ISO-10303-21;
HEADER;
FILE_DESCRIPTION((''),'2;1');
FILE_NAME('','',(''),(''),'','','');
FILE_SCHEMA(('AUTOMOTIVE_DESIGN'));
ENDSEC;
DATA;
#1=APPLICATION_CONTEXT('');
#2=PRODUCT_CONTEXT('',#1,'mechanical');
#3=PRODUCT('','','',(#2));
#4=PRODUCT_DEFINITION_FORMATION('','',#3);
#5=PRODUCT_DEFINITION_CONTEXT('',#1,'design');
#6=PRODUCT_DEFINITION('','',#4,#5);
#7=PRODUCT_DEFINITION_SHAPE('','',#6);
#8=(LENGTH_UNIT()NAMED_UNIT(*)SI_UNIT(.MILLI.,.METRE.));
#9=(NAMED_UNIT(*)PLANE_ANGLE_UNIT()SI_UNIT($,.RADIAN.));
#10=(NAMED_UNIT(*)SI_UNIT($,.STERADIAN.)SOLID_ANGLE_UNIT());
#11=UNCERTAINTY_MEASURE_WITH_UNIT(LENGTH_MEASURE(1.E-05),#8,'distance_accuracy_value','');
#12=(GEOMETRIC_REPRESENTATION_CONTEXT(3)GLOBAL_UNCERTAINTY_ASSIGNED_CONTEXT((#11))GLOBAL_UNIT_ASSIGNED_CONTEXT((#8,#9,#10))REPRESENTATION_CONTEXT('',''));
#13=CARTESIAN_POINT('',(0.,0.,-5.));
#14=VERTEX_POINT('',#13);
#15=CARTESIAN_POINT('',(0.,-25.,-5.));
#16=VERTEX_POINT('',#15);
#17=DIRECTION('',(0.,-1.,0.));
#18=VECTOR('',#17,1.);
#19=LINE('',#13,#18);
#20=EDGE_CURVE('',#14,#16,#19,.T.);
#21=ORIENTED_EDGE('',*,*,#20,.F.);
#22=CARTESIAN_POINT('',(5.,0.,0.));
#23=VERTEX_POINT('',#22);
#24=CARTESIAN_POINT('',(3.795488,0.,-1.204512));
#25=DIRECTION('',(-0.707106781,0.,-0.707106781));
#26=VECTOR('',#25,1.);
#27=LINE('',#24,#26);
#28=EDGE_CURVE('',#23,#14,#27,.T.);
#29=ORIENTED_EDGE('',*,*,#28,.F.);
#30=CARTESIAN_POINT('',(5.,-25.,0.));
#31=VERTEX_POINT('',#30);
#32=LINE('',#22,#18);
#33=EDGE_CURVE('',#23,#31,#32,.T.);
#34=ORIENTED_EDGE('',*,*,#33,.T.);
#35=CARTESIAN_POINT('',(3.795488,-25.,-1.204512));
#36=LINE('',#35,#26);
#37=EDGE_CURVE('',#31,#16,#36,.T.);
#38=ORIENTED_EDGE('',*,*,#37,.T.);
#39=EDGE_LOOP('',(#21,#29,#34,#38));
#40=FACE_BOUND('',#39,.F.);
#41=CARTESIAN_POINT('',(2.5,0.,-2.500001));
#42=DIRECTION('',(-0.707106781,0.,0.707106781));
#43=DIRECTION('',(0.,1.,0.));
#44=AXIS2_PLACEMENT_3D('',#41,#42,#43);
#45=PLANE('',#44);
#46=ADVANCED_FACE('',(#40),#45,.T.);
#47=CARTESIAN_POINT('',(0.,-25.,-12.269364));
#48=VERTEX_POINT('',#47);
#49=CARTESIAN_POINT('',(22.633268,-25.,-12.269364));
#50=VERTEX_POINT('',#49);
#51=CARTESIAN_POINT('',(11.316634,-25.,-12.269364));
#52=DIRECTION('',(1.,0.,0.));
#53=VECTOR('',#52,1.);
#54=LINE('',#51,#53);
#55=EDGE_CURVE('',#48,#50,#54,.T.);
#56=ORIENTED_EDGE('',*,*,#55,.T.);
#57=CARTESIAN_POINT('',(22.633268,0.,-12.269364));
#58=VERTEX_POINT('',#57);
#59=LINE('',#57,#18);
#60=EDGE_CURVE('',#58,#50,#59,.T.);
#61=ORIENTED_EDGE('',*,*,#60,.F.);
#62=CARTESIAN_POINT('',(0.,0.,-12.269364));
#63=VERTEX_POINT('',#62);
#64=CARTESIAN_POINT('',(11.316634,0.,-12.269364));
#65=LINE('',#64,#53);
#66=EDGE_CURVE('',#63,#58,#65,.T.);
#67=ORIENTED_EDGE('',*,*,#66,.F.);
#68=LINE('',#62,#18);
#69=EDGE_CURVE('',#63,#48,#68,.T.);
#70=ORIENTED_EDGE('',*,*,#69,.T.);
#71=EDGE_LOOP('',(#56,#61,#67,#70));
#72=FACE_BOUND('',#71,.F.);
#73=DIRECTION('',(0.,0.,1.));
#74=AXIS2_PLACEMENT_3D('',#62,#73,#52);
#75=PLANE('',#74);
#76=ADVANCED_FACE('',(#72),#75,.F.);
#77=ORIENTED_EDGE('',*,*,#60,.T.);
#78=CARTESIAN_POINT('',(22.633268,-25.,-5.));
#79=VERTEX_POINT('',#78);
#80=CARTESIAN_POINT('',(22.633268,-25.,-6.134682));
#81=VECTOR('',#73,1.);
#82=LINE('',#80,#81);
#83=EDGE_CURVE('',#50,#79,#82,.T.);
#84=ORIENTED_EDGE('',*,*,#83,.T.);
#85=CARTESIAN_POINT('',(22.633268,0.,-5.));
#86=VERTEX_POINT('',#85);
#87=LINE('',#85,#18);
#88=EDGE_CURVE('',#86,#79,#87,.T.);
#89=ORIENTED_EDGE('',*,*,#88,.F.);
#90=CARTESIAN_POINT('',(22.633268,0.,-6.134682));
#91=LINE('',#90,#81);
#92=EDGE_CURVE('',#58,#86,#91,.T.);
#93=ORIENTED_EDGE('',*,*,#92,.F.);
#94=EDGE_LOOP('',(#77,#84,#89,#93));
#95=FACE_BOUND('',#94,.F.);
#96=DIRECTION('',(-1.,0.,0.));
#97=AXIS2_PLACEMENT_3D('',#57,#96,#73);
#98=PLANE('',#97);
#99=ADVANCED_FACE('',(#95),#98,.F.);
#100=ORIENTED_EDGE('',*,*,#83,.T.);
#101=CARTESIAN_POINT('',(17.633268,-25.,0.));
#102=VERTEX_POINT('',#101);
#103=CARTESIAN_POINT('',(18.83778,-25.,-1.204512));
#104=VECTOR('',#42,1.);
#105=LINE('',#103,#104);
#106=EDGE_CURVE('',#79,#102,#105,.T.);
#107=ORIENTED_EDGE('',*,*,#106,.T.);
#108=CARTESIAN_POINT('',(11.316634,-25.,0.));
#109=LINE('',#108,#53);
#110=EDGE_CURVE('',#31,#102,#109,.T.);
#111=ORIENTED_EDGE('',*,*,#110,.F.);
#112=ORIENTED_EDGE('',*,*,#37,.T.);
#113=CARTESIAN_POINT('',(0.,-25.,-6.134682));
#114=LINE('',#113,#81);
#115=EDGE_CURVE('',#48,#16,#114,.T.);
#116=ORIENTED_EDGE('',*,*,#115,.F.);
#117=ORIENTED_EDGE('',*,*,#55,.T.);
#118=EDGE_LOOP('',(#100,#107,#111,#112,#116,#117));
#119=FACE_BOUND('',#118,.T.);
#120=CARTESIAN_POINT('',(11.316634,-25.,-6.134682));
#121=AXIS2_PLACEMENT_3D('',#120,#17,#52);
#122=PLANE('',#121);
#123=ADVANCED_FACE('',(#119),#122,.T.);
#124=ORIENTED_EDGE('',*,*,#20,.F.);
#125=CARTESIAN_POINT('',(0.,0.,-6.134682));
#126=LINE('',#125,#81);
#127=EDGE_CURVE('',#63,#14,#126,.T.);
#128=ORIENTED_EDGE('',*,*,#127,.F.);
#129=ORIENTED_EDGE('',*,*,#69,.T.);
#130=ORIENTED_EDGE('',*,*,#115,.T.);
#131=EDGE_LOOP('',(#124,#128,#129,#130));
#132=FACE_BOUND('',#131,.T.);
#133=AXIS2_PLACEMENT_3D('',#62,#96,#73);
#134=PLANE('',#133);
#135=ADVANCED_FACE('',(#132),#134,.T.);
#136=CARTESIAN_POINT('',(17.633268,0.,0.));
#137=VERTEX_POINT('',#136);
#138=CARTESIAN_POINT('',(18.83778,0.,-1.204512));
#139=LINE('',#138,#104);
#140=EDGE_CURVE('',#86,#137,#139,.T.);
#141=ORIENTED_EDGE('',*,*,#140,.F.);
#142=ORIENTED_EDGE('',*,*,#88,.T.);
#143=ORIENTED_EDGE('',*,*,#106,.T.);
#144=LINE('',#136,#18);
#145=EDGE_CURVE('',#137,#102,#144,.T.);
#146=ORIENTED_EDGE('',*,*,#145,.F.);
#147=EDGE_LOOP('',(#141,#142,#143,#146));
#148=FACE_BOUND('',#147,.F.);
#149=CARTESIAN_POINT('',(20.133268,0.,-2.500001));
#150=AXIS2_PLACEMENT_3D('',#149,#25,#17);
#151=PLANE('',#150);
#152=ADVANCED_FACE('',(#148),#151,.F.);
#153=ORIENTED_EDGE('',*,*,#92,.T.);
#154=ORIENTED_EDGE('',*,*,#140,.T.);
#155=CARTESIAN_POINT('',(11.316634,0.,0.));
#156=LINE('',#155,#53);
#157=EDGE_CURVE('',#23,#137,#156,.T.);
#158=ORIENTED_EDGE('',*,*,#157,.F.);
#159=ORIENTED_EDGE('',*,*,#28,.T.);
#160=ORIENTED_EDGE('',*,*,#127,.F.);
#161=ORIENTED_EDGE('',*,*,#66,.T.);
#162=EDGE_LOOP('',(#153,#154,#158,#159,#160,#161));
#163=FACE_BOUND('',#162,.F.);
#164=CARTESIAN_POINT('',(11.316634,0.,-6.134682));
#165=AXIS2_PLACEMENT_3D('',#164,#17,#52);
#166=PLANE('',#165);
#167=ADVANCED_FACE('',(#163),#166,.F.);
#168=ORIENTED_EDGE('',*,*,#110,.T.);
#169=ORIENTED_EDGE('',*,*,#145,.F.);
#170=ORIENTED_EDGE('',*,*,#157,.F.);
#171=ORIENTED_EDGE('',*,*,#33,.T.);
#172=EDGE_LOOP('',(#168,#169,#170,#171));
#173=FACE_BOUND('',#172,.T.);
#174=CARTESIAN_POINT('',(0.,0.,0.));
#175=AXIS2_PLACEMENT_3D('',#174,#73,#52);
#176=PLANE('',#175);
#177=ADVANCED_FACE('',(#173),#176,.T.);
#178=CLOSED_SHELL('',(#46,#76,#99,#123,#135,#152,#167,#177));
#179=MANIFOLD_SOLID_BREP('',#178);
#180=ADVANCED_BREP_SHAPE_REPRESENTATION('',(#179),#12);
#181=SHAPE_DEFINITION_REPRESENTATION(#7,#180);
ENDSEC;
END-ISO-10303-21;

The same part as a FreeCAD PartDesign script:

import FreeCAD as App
import Part
import Sketcher
from FreeCAD import Vector


def edges_at(feature, points):
    """Names of the edges that pass closest to the given points."""
    edges = feature.Shape.Edges
    near = lambda p: min(range(len(edges)), key=lambda i: edges[i].distToShape(Part.Vertex(*p))[0])
    return sorted({f"Edge{near(p) + 1}" for p in points})

doc = App.newDocument("Part")
body = doc.addObject("PartDesign::Body", "Body")

# Sketch on XZ plane
sketch1 = body.newObject("Sketcher::SketchObject", "Sketch")
sketch1.AttachmentSupport = (doc.getObject("XZ_Plane"), [""])
sketch1.MapMode = "FlatFace"
sketch1.addGeometry(Part.LineSegment(Vector(0, 0, 0), Vector(0, -12, 0)), False)
sketch1.addGeometry(Part.LineSegment(Vector(0, -12, 0), Vector(23, -12, 0)), False)
sketch1.addGeometry(Part.LineSegment(Vector(23, -12, 0), Vector(23, 0, 0)), False)
sketch1.addGeometry(Part.LineSegment(Vector(23, 0, 0), Vector(0, 0, 0)), False)
sketch1.addConstraint(Sketcher.Constraint("Coincident", 0, 2, 1, 1))
sketch1.addConstraint(Sketcher.Constraint("Coincident", 1, 2, 2, 1))
sketch1.addConstraint(Sketcher.Constraint("Coincident", 2, 2, 3, 1))
sketch1.addConstraint(Sketcher.Constraint("Coincident", 3, 2, 0, 1))
sketch1.addConstraint(Sketcher.Constraint("Vertical", 0))
sketch1.addConstraint(Sketcher.Constraint("Horizontal", 1))
sketch1.addConstraint(Sketcher.Constraint("Vertical", 2))
sketch1.addConstraint(Sketcher.Constraint("Horizontal", 3))
sketch1.addConstraint(Sketcher.Constraint("Coincident", 3, 2, -1, 1))
sketch1.addConstraint(Sketcher.Constraint("DistanceX", 1, 1, 1, 2, 22.633268))
sketch1.addConstraint(Sketcher.Constraint("DistanceY", 0, 2, 0, 1, 12.269363))
pad1 = body.newObject("PartDesign::Pad", "Pad")
pad1.Profile = sketch1
pad1.Length = 25
doc.recompute()

chamfer = body.newObject("PartDesign::Chamfer", "Chamfer")
chamfer.Base = (pad1, edges_at(pad1, [(22.633, -12.5, 0)]))
chamfer.Size = 5
doc.recompute()

chamfer2 = body.newObject("PartDesign::Chamfer", "Chamfer001")
chamfer2.Base = (chamfer, edges_at(chamfer, [(0, -12.5, 0)]))
chamfer2.Size = 5
body2 = doc.addObject("PartDesign::Body", "Body001")

# Sketch on XY plane
sketch2 = body2.newObject("Sketcher::SketchObject", "Sketch001")
sketch2.AttachmentSupport = (doc.getObject("XY_Plane001"), [""])
sketch2.MapMode = "FlatFace"
sketch2.addGeometry(Part.Circle(Vector(-79, 19, 0), Vector(0, 0, 1), 22), False)
sketch2.addConstraint(Sketcher.Constraint("Diameter", 0, 44.617682))
sketch2.addConstraint(Sketcher.Constraint("DistanceX", 0, 3, -1, 1, 79.230487))
sketch2.addConstraint(Sketcher.Constraint("DistanceY", -1, 1, 0, 3, 19.022213))
pad2 = body2.newObject("PartDesign::Pad", "Pad001")
pad2.Profile = sketch2
pad2.Length = 29.9
body2.Visibility = False

doc.recompute()
